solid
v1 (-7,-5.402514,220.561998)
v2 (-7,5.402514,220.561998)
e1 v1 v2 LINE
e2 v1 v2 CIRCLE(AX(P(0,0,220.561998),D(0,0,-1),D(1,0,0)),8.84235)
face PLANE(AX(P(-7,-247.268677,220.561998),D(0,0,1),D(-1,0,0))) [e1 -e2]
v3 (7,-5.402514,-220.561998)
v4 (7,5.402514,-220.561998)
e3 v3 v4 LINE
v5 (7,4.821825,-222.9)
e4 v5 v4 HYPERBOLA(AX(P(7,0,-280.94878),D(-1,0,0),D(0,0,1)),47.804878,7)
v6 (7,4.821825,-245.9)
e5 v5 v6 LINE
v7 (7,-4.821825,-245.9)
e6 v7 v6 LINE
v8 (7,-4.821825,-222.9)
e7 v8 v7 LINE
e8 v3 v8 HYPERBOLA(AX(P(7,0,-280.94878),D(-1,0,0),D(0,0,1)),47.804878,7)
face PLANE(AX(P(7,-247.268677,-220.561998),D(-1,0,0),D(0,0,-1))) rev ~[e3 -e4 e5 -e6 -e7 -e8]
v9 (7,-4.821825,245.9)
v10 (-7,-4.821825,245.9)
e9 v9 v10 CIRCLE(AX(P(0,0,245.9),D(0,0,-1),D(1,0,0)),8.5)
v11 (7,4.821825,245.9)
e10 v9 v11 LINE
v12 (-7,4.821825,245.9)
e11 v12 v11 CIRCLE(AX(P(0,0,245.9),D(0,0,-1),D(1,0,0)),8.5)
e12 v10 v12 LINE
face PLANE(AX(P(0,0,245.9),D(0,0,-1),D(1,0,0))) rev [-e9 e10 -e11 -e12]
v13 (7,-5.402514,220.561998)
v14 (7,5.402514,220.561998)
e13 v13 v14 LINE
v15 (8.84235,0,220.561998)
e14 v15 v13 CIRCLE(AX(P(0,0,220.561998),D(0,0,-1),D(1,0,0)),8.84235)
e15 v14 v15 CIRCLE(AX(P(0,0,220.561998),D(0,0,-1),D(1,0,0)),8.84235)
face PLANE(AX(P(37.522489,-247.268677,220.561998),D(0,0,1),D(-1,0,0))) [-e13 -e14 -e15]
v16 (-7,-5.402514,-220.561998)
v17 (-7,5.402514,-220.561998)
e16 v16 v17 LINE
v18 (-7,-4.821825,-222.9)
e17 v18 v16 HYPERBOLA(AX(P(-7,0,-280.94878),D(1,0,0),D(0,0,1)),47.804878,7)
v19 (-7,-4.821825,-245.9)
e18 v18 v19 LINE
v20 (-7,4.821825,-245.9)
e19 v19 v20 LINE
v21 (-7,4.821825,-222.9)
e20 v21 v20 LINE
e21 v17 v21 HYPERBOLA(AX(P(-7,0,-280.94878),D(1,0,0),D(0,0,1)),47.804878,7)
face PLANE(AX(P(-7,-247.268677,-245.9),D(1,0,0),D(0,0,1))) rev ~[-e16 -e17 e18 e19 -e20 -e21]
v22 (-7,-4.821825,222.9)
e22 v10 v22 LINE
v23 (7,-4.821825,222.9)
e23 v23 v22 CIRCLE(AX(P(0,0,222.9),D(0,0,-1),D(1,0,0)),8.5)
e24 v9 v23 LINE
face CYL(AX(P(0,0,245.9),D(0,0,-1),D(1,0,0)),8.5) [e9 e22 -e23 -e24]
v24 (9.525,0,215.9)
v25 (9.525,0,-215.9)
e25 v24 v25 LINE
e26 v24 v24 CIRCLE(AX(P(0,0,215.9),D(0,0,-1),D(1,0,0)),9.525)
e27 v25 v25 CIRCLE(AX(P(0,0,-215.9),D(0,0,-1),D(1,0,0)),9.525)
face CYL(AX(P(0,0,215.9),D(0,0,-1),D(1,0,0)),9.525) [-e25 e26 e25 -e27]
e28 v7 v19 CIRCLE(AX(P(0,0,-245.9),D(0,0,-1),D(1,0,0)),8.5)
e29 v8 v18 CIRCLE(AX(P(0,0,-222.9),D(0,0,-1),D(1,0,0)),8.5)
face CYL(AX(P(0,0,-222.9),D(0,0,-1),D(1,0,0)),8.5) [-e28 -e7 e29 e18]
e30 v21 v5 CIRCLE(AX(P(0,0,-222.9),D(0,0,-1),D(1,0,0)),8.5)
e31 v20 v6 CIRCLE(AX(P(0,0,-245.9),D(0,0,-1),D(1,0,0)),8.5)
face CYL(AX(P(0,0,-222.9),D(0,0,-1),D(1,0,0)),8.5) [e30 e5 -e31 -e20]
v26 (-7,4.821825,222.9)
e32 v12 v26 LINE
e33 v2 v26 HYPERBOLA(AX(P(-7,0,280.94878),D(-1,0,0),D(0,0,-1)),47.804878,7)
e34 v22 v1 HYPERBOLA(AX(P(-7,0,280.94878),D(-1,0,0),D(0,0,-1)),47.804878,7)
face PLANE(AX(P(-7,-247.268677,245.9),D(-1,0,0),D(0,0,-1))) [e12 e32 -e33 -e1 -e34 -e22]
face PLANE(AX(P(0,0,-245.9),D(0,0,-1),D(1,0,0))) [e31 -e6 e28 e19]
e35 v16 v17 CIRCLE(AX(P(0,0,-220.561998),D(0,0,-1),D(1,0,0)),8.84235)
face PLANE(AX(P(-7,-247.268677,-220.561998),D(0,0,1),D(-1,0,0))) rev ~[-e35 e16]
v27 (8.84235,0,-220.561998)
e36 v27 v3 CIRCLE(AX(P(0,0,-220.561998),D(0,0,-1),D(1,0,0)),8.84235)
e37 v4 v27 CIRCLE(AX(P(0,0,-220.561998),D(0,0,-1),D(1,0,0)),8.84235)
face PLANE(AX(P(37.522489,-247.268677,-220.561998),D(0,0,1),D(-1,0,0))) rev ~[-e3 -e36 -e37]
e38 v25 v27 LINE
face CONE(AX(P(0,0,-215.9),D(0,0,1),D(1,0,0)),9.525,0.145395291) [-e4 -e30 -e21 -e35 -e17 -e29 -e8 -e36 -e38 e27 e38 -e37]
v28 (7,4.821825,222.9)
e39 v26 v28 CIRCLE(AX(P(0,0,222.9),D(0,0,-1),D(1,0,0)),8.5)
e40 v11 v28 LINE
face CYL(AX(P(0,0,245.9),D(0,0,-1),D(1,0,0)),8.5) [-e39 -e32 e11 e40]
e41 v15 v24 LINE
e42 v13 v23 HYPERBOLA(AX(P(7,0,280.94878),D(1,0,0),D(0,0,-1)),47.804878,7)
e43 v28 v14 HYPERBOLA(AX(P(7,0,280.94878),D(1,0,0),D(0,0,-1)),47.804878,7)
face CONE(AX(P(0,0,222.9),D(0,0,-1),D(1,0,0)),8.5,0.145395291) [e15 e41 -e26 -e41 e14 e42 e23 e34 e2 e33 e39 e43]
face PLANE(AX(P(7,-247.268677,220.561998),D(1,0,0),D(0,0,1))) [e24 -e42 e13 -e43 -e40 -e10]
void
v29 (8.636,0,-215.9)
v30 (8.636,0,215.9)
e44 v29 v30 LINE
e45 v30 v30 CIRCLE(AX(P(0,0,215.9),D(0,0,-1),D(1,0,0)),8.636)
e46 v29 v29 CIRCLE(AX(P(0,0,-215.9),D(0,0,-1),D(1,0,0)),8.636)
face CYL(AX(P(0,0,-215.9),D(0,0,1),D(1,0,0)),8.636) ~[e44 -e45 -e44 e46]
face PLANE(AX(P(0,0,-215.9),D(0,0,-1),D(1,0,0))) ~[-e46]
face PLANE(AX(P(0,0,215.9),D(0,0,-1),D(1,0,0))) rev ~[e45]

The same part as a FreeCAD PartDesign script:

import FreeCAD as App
import Part
import Sketcher
Q = App.Units.Quantity


def add_polygon(sketch, points):
    """Adds a closed chain of lines whose ends are joined by coincident constraints."""
    first, n = sketch.GeometryCount, len(points)
    for a, b in zip(points, points[1:] + points[:1]):
        sketch.addGeometry(Part.LineSegment(App.Vector(*a, 0), App.Vector(*b, 0)), False)
    for i in range(n):
        sketch.addConstraint(Sketcher.Constraint("Coincident", first + i, 2, first + (i + 1) % n, 1))

doc = App.newDocument("Part")
body = doc.addObject("PartDesign::Body", "Body")

# Sketch on YZ plane
sketch1 = body.newObject("Sketcher::SketchObject", "Sketch")
sketch1.AttachmentSupport = (doc.getObject("YZ_Plane"), [""])
sketch1.MapMode = "FlatFace"
add_polygon(sketch1, [(10, -216), (10, 216), (8, 223), (8, 246), (0, 246), (0, 216), (9, 216), (9, -216), (0, -216), (0, -246), (8, -246), (8, -223)])  # lines 0-11
sketch1.addConstraint([
    Sketcher.Constraint("Vertical", 0),
    Sketcher.Constraint("Vertical", 2),
    Sketcher.Constraint("Horizontal", 3),
    Sketcher.Constraint("Vertical", 4),
    Sketcher.Constraint("Horizontal", 5),
    Sketcher.Constraint("Vertical", 6),
    Sketcher.Constraint("Horizontal", 7),
    Sketcher.Constraint("Vertical", 8),
    Sketcher.Constraint("Horizontal", 9),
    Sketcher.Constraint("Vertical", 10),
    Sketcher.Constraint("Symmetric", 4, 2, 7, 2, -1, 1),
    Sketcher.Constraint("Symmetric", 3, 2, 8, 2, -1),
    Sketcher.Constraint("Symmetric", 1, 2, 10, 2, -1),
    Sketcher.Constraint("Horizontal", 0, 2, 4, 2),
    Sketcher.Constraint("Horizontal", 7, 2, 11, 2),
    Sketcher.Constraint("DistanceY", 2, 1, 2, 2, Q("23 mm")),
    Sketcher.Constraint("DistanceY", 4, 2, 4, 1, Q("30 mm")),
    Sketcher.Constraint("DistanceX", 3, 2, 3, 1, Q("8.5 mm")),
    Sketcher.Constraint("DistanceY", 0, 1, 0, 2, Q("431.8 mm")),
    Sketcher.Constraint("DistanceX", 5, 1, 5, 2, Q("8.636 mm")),
    Sketcher.Constraint("DistanceX", -1, 1, 0, 2, Q("9.525 mm")),
])
revolution = body.newObject("PartDesign::Revolution", "Revolution")
revolution.Profile = sketch1
revolution.ReferenceAxis = (sketch1, ["V_Axis"])
revolution.Angle = 360

# Sketch on XZ plane
sketch2 = body.newObject("Sketcher::SketchObject", "Sketch001")
sketch2.AttachmentSupport = (doc.getObject("XZ_Plane"), [""])
sketch2.MapMode = "FlatFace"
add_polygon(sketch2, [(-7, 221), (-27, 221), (-27, 253), (38, 253), (38, 221), (7, 221), (7, 246), (-7, 246)])  # lines 0-7
add_polygon(sketch2, [(-7, -221), (-7, -246), (7, -246), (7, -221), (38, -221), (38, -253), (-27, -253), (-27, -221)])  # lines 8-15
sketch2.addConstraint([
    Sketcher.Constraint("Horizontal", 0),
    Sketcher.Constraint("Vertical", 1),
    Sketcher.Constraint("Horizontal", 2),
    Sketcher.Constraint("Vertical", 3),
    Sketcher.Constraint("Horizontal", 4),
    Sketcher.Constraint("Vertical", 5),
    Sketcher.Constraint("Horizontal", 6),
    Sketcher.Constraint("Vertical", 7),
    Sketcher.Constraint("Vertical", 8),
    Sketcher.Constraint("Horizontal", 9),
    Sketcher.Constraint("Vertical", 10),
    Sketcher.Constraint("Horizontal", 11),
    Sketcher.Constraint("Vertical", 12),
    Sketcher.Constraint("Horizontal", 13),
    Sketcher.Constraint("Vertical", 14),
    Sketcher.Constraint("Horizontal", 15),
    Sketcher.Constraint("Symmetric", 5, 2, 8, 2, -1, 1),
    Sketcher.Constraint("Symmetric", 7, 2, 10, 2, -1, 1),
    Sketcher.Constraint("Symmetric", 4, 2, 7, 2, -2),
    Sketcher.Constraint("Symmetric", 2, 2, 12, 2, -1),
    Sketcher.Constraint("Symmetric", 0, 2, 14, 2, -1),
    Sketcher.Constraint("DistanceX", 6, 2, 6, 1, Q("14 mm")),
    Sketcher.Constraint("DistanceY", -1, 1, 5, 2, Q("245.9 mm")),
    Sketcher.Constraint("DistanceY", 5, 1, 5, 2, Q("25.338002 mm")),
    Sketcher.Constraint("DistanceX", 4, 2, 4, 1, Q("30.522489 mm")),
    Sketcher.Constraint("DistanceX", 0, 2, 0, 1, Q("19.727444 mm")),
    Sketcher.Constraint("DistanceY", 1, 1, 1, 2, Q("32.034473 mm")),
])
pocket1 = body.newObject("PartDesign::Pocket", "Pocket")
pocket1.Profile = sketch2
pocket1.Type = "ThroughAll"
pocket1.Midplane = True

doc.recompute()
